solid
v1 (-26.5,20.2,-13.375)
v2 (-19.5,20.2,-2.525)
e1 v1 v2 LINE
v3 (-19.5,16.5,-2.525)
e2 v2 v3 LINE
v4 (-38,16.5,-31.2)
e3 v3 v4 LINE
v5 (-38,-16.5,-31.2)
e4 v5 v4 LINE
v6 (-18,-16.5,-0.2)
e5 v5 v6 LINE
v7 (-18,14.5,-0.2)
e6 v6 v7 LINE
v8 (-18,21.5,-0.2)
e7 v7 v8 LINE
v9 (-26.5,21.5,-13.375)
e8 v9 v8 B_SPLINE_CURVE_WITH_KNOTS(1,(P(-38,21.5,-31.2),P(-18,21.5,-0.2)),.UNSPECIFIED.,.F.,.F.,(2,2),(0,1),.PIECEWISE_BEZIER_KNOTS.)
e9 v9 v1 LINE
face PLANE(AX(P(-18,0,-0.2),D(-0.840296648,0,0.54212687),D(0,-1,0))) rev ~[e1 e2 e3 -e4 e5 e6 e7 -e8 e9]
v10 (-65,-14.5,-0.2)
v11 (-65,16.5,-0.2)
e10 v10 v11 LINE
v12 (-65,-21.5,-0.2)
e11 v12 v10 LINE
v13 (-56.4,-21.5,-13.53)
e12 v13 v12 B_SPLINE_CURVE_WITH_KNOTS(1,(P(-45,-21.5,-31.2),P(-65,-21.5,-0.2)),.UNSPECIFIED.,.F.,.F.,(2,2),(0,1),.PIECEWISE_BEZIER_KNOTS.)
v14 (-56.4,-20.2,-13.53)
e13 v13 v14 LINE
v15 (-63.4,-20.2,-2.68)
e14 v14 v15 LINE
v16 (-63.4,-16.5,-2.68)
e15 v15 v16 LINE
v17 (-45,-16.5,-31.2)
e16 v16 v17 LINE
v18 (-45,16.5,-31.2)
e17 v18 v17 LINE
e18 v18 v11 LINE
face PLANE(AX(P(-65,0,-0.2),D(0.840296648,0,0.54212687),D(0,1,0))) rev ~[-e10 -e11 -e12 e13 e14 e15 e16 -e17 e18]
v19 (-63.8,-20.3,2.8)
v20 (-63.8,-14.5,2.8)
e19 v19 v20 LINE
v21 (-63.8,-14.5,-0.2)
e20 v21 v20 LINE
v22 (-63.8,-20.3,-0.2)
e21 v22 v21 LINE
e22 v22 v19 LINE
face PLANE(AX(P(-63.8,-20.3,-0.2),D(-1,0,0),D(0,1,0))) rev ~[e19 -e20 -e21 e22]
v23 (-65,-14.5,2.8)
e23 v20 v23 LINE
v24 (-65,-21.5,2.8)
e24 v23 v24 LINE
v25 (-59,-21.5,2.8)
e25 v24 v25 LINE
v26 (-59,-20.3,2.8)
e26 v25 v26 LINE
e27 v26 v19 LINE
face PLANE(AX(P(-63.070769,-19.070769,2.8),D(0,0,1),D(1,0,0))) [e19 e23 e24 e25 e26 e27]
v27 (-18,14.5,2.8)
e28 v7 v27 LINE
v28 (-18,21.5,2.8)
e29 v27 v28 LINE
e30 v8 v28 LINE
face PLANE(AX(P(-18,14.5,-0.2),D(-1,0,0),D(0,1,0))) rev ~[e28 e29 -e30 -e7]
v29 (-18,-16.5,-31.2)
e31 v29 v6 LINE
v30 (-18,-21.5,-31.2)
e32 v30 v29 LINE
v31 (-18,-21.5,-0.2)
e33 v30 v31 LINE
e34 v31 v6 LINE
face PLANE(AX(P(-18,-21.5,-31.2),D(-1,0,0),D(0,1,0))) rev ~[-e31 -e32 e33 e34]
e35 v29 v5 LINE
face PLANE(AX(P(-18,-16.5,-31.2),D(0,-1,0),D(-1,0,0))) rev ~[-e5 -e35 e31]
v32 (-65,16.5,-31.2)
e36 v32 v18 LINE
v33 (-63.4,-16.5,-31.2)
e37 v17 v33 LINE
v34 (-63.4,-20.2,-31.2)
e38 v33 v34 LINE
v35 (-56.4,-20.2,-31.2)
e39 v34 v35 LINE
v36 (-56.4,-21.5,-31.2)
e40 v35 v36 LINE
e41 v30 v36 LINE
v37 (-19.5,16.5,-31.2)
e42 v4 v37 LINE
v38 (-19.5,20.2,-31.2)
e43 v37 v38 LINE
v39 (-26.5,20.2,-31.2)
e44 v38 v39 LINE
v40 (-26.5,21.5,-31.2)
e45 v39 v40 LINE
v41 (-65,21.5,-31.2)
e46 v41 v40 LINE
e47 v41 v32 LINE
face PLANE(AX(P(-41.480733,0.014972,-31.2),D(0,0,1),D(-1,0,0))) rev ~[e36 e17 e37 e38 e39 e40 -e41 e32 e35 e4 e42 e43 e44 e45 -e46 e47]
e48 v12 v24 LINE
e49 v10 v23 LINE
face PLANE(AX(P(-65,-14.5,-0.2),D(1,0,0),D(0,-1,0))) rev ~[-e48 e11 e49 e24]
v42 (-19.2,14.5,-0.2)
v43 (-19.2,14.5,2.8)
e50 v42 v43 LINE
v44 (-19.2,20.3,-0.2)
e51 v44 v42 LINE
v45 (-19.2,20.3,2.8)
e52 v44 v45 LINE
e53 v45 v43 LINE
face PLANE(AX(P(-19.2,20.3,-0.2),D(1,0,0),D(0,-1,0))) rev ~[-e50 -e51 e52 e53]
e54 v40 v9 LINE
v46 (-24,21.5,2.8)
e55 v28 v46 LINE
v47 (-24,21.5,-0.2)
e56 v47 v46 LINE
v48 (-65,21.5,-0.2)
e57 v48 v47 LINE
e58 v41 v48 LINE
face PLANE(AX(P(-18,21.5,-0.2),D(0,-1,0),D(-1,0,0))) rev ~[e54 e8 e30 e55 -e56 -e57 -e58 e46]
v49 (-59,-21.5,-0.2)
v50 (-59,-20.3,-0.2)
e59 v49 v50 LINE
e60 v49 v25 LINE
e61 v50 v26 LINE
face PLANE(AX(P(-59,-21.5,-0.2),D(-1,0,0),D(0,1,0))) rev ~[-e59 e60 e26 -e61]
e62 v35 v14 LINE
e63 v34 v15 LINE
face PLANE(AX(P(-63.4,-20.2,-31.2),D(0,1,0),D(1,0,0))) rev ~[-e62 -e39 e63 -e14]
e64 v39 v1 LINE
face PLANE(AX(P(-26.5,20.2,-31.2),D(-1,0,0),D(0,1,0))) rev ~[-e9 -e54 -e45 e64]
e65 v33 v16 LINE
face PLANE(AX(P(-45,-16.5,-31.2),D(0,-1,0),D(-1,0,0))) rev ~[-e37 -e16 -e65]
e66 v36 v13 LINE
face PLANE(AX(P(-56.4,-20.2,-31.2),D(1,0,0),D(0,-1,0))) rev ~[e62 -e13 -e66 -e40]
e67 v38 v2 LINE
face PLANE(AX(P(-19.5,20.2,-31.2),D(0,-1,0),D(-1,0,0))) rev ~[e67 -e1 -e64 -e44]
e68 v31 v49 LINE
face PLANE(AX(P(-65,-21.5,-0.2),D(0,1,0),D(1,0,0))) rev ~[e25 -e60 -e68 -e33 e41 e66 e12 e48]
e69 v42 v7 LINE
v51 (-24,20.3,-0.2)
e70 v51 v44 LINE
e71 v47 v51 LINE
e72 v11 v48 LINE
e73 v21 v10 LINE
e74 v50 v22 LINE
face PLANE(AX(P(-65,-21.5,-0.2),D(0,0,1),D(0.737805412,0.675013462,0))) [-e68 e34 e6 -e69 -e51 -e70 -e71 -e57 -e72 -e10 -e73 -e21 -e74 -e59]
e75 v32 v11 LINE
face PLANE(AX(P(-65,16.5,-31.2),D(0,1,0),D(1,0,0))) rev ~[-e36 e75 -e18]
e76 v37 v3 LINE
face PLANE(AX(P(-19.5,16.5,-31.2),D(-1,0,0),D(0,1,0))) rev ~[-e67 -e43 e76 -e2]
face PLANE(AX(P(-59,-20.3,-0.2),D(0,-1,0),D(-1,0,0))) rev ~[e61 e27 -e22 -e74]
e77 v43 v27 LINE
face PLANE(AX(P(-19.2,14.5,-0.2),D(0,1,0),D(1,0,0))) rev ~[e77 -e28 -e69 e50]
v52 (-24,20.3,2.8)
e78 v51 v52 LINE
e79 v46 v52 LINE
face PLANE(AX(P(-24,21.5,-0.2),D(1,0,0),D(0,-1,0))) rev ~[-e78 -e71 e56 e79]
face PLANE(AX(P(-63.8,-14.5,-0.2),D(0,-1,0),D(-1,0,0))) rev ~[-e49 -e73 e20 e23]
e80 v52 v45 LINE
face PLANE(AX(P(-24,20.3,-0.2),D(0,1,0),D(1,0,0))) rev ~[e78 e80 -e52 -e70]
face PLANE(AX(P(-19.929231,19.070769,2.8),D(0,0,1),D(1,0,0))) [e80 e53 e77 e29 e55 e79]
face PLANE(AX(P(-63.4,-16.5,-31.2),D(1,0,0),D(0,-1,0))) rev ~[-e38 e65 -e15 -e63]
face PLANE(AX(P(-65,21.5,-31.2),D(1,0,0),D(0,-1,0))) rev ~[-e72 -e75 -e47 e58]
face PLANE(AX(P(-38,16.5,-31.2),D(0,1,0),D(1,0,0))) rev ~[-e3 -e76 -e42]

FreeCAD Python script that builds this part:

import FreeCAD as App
import Part
import Sketcher
Q = App.Units.Quantity


def add_polygon(sketch, points):
    """Adds a closed chain of lines whose ends are joined by coincident constraints."""
    first, n = sketch.GeometryCount, len(points)
    for a, b in zip(points, points[1:] + points[:1]):
        sketch.addGeometry(Part.LineSegment(App.Vector(*a, 0), App.Vector(*b, 0)), False)
    for i in range(n):
        sketch.addConstraint(Sketcher.Constraint("Coincident", first + i, 2, first + (i + 1) % n, 1))

doc = App.newDocument("Part")
body = doc.addObject("PartDesign::Body", "Body")

sketch1 = doc.addObject("Sketcher::SketchObject", "Sketch")
body.addObject(sketch1)
sketch1.AttachmentSupport = (doc.XY_Plane, [""])
sketch1.MapMode = "FlatFace"
sketch1.AttachmentOffset = App.Placement(App.Vector(0, 0, -31.2), App.Rotation())
add_polygon(sketch1, [(-45, -21.5), (-45, 21.5), (-38, 21.5), (-38, -21.5)])
sketch1.addConstraint([
    Sketcher.Constraint("Vertical", 0),
    Sketcher.Constraint("Horizontal", 1),
    Sketcher.Constraint("Vertical", 2),
    Sketcher.Constraint("Horizontal", 3),
    Sketcher.Constraint("DistanceX", 1, 1, 1, 2, Q("7 mm")),
    Sketcher.Constraint("DistanceY", 0, 1, 0, 2, Q("43 mm")),
    Sketcher.Constraint("DistanceX", 0, 2, -1, 1, Q("45 mm")),
    Sketcher.Constraint("DistanceY", -1, 1, 0, 2, Q("21.5 mm")),
])

sketch2 = doc.addObject("Sketcher::SketchObject", "Sketch001")
body.addObject(sketch2)
sketch2.AttachmentSupport = (doc.XY_Plane, [""])
sketch2.MapMode = "FlatFace"
sketch2.AttachmentOffset = App.Placement(App.Vector(0, 0, -0.2), App.Rotation())
add_polygon(sketch2, [(-65, 21.5), (-65, -21.5), (-18, -21.5), (-18, 21.5)])
sketch2.addConstraint([
    Sketcher.Constraint("Vertical", 0),
    Sketcher.Constraint("Horizontal", 1),
    Sketcher.Constraint("Vertical", 2),
    Sketcher.Constraint("Horizontal", 3),
    Sketcher.Constraint("DistanceX", 1, 1, 1, 2, Q("47 mm")),
    Sketcher.Constraint("DistanceY", 0, 2, 0, 1, Q("43 mm")),
    Sketcher.Constraint("DistanceX", 0, 2, -1, 1, Q("65 mm")),
    Sketcher.Constraint("DistanceY", 0, 2, -1, 1, Q("21.5 mm")),
])

additiveloft = doc.addObject("PartDesign::AdditiveLoft", "AdditiveLoft")
body.addObject(additiveloft)
additiveloft.Profile = sketch1
additiveloft.Sections = [sketch2]

sketch3 = doc.addObject("Sketcher::SketchObject", "Sketch002")
body.addObject(sketch3)
sketch3.AttachmentSupport = (doc.XY_Plane, [""])
sketch3.MapMode = "FlatFace"
sketch3.AttachmentOffset = App.Placement(App.Vector(0, 0, -31.2), App.Rotation())
add_polygon(sketch3, [(-38, -16.5), (-18, -16.5), (-18, -21.5), (-56.4, -21.5), (-56.4, -20.2), (-63.4, -20.2), (-63.4, -16.5), (-45, -16.5), (-45, 16.5), (-65, 16.5), (-65, 21.5), (-26.5, 21.5), (-26.5, 20.2), (-19.5, 20.2), (-19.5, 16.5), (-38, 16.5)])
sketch3.addConstraint([
    Sketcher.Constraint("Horizontal", 0),
    Sketcher.Constraint("Vertical", 1),
    Sketcher.Constraint("Horizontal", 2),
    Sketcher.Constraint("Vertical", 3),
    Sketcher.Constraint("Horizontal", 4),
    Sketcher.Constraint("Vertical", 5),
    Sketcher.Constraint("Horizontal", 6),
    Sketcher.Constraint("Vertical", 7),
    Sketcher.Constraint("Horizontal", 8),
    Sketcher.Constraint("Vertical", 9),
    Sketcher.Constraint("Horizontal", 10),
    Sketcher.Constraint("Vertical", 11),
    Sketcher.Constraint("Horizontal", 12),
    Sketcher.Constraint("Vertical", 13),
    Sketcher.Constraint("Horizontal", 14),
    Sketcher.Constraint("Vertical", 15),
    Sketcher.Constraint("Horizontal", 0, 2, 5, 2),
    Sketcher.Constraint("Horizontal", 8, 2, 13, 2),
    Sketcher.Constraint("Equal", 0, 8),
    Sketcher.Constraint("Equal", 4, 12),
    Sketcher.Constraint("Equal", 1, 9),
    Sketcher.Constraint("Equal", 3, 11),
    Sketcher.Constraint("DistanceX", 0, 1, 0, 2, Q("20 mm")),
    Sketcher.Constraint("DistanceX", 4, 2, 4, 1, Q("7 mm")),
    Sketcher.Constraint("DistanceY", 1, 2, 1, 1, Q("5 mm")),
    Sketcher.Constraint("DistanceY", 7, 1, 7, 2, Q("33 mm")),
    Sketcher.Constraint("DistanceX", 2, 2, 2, 1, Q("38.4 mm")),
    Sketcher.Constraint("DistanceX", 6, 1, 6, 2, Q("18.4 mm")),
    Sketcher.Constraint("DistanceX", 10, 1, 10, 2, Q("38.5 mm")),
    Sketcher.Constraint("DistanceY", 3, 1, 3, 2, Q("1.3 mm")),
    Sketcher.Constraint("DistanceX", 0, 2, -1, 1, Q("18 mm")),
    Sketcher.Constraint("DistanceY", 0, 2, -1, 1, Q("16.5 mm")),
])
pad1 = doc.addObject("PartDesign::Pad", "Pad")
body.addObject(pad1)
pad1.Profile = sketch3
pad1.Length = 31

sketch4 = doc.addObject("Sketcher::SketchObject", "Sketch003")
body.addObject(sketch4)
sketch4.AttachmentSupport = (doc.XY_Plane, [""])
sketch4.MapMode = "FlatFace"
sketch4.AttachmentOffset = App.Placement(App.Vector(0, 0, -0.2), App.Rotation())
add_polygon(sketch4, [(-24, 21.5), (-24, 20.3), (-19.2, 20.3), (-19.2, 14.5), (-18, 14.5), (-18, 21.5)])
sketch4.addConstraint([
    Sketcher.Constraint("Vertical", 0),
    Sketcher.Constraint("Horizontal", 1),
    Sketcher.Constraint("Vertical", 2),
    Sketcher.Constraint("Horizontal", 3),
    Sketcher.Constraint("Vertical", 4),
    Sketcher.Constraint("Horizontal", 5),
    Sketcher.Constraint("Equal", 3, 0),
    Sketcher.Constraint("DistanceX", 5, 2, 5, 1, Q("6 mm")),
    Sketcher.Constraint("DistanceY", 4, 1, 4, 2, Q("7 mm")),
    Sketcher.Constraint("DistanceX", 1, 1, 1, 2, Q("4.8 mm")),
    Sketcher.Constraint("DistanceX", 0, 2, -1, 1, Q("24 mm")),
    Sketcher.Constraint("DistanceY", -1, 1, 0, 2, Q("20.3 mm")),
])
pad2 = doc.addObject("PartDesign::Pad", "Pad001")
body.addObject(pad2)
pad2.Profile = sketch4
pad2.Length = 3

sketch5 = doc.addObject("Sketcher::SketchObject", "Sketch004")
body.addObject(sketch5)
sketch5.AttachmentSupport = (doc.XY_Plane, [""])
sketch5.MapMode = "FlatFace"
sketch5.AttachmentOffset = App.Placement(App.Vector(0, 0, -0.2), App.Rotation())
add_polygon(sketch5, [(-65, -14.5), (-65, -21.5), (-59, -21.5), (-59, -20.3), (-63.8, -20.3), (-63.8, -14.5)])
sketch5.addConstraint([
    Sketcher.Constraint("Vertical", 0),
    Sketcher.Constraint("Horizontal", 1),
    Sketcher.Constraint("Vertical", 2),
    Sketcher.Constraint("Horizontal", 3),
    Sketcher.Constraint("Vertical", 4),
    Sketcher.Constraint("Horizontal", 5),
    Sketcher.Constraint("Equal", 5, 2),
    Sketcher.Constraint("DistanceX", 1, 1, 1, 2, Q("6 mm")),
    Sketcher.Constraint("DistanceY", 0, 2, 0, 1, Q("7 mm")),
    Sketcher.Constraint("DistanceX", 3, 2, 3, 1, Q("4.8 mm")),
    Sketcher.Constraint("DistanceX", 0, 2, -1, 1, Q("65 mm")),
    Sketcher.Constraint("DistanceY", 0, 2, -1, 1, Q("21.5 mm")),
])
pad3 = doc.addObject("PartDesign::Pad", "Pad002")
body.addObject(pad3)
pad3.Profile = sketch5
pad3.Length = 3

doc.recompute()
